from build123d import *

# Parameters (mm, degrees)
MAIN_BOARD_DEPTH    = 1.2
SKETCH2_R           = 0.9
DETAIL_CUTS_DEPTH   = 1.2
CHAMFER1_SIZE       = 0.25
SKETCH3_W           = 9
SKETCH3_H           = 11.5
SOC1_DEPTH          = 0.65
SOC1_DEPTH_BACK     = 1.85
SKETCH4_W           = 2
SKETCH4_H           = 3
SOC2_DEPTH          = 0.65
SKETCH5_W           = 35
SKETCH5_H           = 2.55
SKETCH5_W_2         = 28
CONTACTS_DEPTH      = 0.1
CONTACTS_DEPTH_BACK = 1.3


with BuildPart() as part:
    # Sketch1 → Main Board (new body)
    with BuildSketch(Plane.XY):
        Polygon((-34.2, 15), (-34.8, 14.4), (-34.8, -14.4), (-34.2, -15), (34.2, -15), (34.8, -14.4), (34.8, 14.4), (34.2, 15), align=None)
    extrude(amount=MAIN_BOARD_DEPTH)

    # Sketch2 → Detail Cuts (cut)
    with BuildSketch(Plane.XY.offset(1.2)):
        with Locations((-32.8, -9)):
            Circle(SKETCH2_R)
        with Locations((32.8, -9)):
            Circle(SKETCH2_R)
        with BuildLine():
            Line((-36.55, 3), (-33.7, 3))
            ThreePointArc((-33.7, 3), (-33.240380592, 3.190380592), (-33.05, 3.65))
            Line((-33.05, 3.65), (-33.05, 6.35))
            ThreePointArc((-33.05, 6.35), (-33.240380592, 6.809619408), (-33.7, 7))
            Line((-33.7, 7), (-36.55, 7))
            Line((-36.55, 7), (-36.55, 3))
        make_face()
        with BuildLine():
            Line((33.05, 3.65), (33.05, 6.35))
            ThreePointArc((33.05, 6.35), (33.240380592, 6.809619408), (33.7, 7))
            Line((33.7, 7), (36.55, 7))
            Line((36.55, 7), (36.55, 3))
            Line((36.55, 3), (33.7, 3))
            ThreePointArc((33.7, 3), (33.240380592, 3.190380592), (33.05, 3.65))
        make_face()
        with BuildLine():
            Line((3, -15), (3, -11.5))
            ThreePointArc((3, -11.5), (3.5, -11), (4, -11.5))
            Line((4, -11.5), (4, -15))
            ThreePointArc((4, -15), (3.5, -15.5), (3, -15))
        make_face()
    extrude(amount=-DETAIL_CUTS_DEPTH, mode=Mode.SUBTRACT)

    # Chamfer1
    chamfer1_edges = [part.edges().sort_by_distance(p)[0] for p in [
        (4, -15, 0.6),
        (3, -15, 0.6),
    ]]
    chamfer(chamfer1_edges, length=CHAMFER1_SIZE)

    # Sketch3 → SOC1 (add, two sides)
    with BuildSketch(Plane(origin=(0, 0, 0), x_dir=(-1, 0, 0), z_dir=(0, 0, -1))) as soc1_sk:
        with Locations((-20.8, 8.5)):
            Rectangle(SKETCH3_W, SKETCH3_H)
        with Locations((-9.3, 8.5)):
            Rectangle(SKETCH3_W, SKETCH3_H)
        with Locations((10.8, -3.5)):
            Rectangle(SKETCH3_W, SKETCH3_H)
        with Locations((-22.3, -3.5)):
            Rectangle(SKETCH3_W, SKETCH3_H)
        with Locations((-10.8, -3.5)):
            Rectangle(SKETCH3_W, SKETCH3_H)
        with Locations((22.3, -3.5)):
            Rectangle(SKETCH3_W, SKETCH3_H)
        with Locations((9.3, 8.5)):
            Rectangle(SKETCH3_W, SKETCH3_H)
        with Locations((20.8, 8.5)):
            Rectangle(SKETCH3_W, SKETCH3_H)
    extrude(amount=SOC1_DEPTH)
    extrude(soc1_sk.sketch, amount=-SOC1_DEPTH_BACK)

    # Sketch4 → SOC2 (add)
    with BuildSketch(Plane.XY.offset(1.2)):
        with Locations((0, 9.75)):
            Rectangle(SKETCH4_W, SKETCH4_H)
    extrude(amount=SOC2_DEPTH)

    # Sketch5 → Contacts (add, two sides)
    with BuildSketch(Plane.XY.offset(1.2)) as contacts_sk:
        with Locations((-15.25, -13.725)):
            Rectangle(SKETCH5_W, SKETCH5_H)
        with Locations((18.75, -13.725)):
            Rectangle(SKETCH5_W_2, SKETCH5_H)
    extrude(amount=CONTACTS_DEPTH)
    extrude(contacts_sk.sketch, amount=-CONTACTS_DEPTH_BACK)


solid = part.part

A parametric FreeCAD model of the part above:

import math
import FreeCAD as App
import Part
import Sketcher

V = App.Vector


def edges_at(feature, points):
    """Names of the edges that pass closest to the given points."""
    edges = feature.Shape.Edges
    near = lambda p: min(range(len(edges)), key=lambda i: edges[i].distToShape(Part.Vertex(*p))[0])
    return sorted({f"Edge{near(p) + 1}" for p in points})


def add_polygon(sketch, points):
    """Adds a closed chain of lines whose ends are joined by coincident constraints."""
    first, n = sketch.GeometryCount, len(points)
    for a, b in zip(points, points[1:] + points[:1]):
        sketch.addGeometry(Part.LineSegment(App.Vector(*a, 0), App.Vector(*b, 0)), False)
    for i in range(n):
        sketch.addConstraint(Sketcher.Constraint("Coincident", first + i, 2, first + (i + 1) % n, 1))

doc = App.newDocument("Part")
body = doc.addObject("PartDesign::Body", "Body")

# Sketch on XY plane
sketch1 = body.newObject("Sketcher::SketchObject", "Sketch")
sketch1.AttachmentSupport = (doc.getObject("XY_Plane"), [""])
sketch1.MapMode = "FlatFace"
add_polygon(sketch1, [(-34.2, 15), (-34.8, 14.4), (-34.8, -14.4), (-34.2, -15), (34.2, -15), (34.8, -14.4), (34.8, 14.4), (34.2, 15)])  # lines 0-7
sketch1.addConstraint(Sketcher.Constraint("Vertical", 1))
sketch1.addConstraint(Sketcher.Constraint("Horizontal", 3))
sketch1.addConstraint(Sketcher.Constraint("Vertical", 5))
sketch1.addConstraint(Sketcher.Constraint("Horizontal", 7))
sketch1.addConstraint(Sketcher.Constraint("Symmetric", 0, 2, 4, 2, -1, 1))
sketch1.addConstraint(Sketcher.Constraint("Symmetric", 2, 2, 6, 2, -1, 1))
sketch1.addConstraint(Sketcher.Constraint("Perpendicular", 0, 2))
sketch1.addConstraint(Sketcher.Constraint("Perpendicular", 2, 4))
sketch1.addConstraint(Sketcher.Constraint("Perpendicular", 4, 6))
sketch1.addConstraint(Sketcher.Constraint("Horizontal", 1, 2, 4, 2))
sketch1.addConstraint(Sketcher.Constraint("Vertical", 3, 2, 6, 2))
sketch1.addConstraint(Sketcher.Constraint("DistanceX", 3, 1, 3, 2, 68.4))
sketch1.addConstraint(Sketcher.Constraint("DistanceY", 1, 2, 1, 1, 28.8))
sketch1.addConstraint(Sketcher.Constraint("DistanceY", 2, 2, -1, 1, 15.0))
pad1 = body.newObject("PartDesign::Pad", "Pad")
pad1.Profile = sketch1
pad1.Length = 1.2

# Sketch on XY plane
sketch2 = body.newObject("Sketcher::SketchObject", "Sketch001")
sketch2.AttachmentSupport = (doc.getObject("XY_Plane"), [""])
sketch2.MapMode = "FlatFace"
sketch2.AttachmentOffset = App.Placement(V(0, 0, 1.2), App.Rotation())
sketch2.addGeometry(Part.Circle(V(-32.8, -9, 0), V(0, 0, 1), 0.9), False)
sketch2.addGeometry(Part.Circle(V(32.8, -9, 0), V(0, 0, 1), 0.9), False)
sketch2.addGeometry(Part.LineSegment(V(-36.5, 3, 0), V(-33.7, 3, 0)), False)
sketch2.addGeometry(Part.ArcOfCircle(Part.Circle(V(-33.7, 3.6, 0), V(0, 0, 1), 0.6), math.radians(-90), math.radians(0)), False)
sketch2.addGeometry(Part.LineSegment(V(-33, 3.6, 0), V(-33, 6.3, 0)), False)
sketch2.addGeometry(Part.ArcOfCircle(Part.Circle(V(-33.7, 6.4, 0), V(0, 0, 1), 0.6), math.radians(0), math.radians(90)), False)
sketch2.addGeometry(Part.LineSegment(V(-33.7, 7, 0), V(-36.5, 7, 0)), False)
sketch2.addGeometry(Part.LineSegment(V(-36.5, 7, 0), V(-36.5, 3, 0)), False)
sketch2.addGeometry(Part.LineSegment(V(33, 6.3, 0), V(33, 3.6, 0)), False)
sketch2.addGeometry(Part.ArcOfCircle(Part.Circle(V(33.7, 3.6, 0), V(0, 0, 1), 0.6), math.radians(180), math.radians(270)), False)
sketch2.addGeometry(Part.LineSegment(V(33.7, 3, 0), V(36.5, 3, 0)), False)
sketch2.addGeometry(Part.LineSegment(V(36.5, 3, 0), V(36.5, 7, 0)), False)
sketch2.addGeometry(Part.LineSegment(V(36.5, 7, 0), V(33.7, 7, 0)), False)
sketch2.addGeometry(Part.ArcOfCircle(Part.Circle(V(33.7, 6.4, 0), V(0, 0, 1), 0.6), math.radians(90), math.radians(180)), False)
sketch2.addGeometry(Part.LineSegment(V(3, -11.5, 0), V(3, -15, 0)), False)
sketch2.addGeometry(Part.ArcOfCircle(Part.Circle(V(3.5, -15, 0), V(0, 0, 1), 0.5), math.radians(180), math.radians(360)), False)
sketch2.addGeometry(Part.LineSegment(V(4, -15, 0), V(4, -11.5, 0)), False)
sketch2.addGeometry(Part.ArcOfCircle(Part.Circle(V(3.5, -11.5, 0), V(0, 0, 1), 0.5), math.radians(0), math.radians(180)), False)
sketch2.addConstraint(Sketcher.Constraint("Tangent", 2, 2, 3, 1))
sketch2.addConstraint(Sketcher.Constraint("Tangent", 3, 2, 4, 1))
sketch2.addConstraint(Sketcher.Constraint("Tangent", 4, 2, 5, 1))
sketch2.addConstraint(Sketcher.Constraint("Tangent", 5, 2, 6, 1))
sketch2.addConstraint(Sketcher.Constraint("Coincident", 6, 2, 7, 1))
sketch2.addConstraint(Sketcher.Constraint("Coincident", 7, 2, 2, 1))
sketch2.addConstraint(Sketcher.Constraint("Tangent", 8, 2, 9, 1))
sketch2.addConstraint(Sketcher.Constraint("Tangent", 9, 2, 10, 1))
sketch2.addConstraint(Sketcher.Constraint("Coincident", 10, 2, 11, 1))
sketch2.addConstraint(Sketcher.Constraint("Coincident", 11, 2, 12, 1))
sketch2.addConstraint(Sketcher.Constraint("Tangent", 12, 2, 13, 1))
sketch2.addConstraint(Sketcher.Constraint("Tangent", 13, 2, 8, 1))
sketch2.addConstraint(Sketcher.Constraint("Tangent", 14, 2, 15, 1))
sketch2.addConstraint(Sketcher.Constraint("Tangent", 15, 2, 16, 1))
sketch2.addConstraint(Sketcher.Constraint("Tangent", 16, 2, 17, 1))
sketch2.addConstraint(Sketcher.Constraint("Tangent", 17, 2, 14, 1))
sketch2.addConstraint(Sketcher.Constraint("Horizontal", 2))
sketch2.addConstraint(Sketcher.Constraint("Vertical", 4))
sketch2.addConstraint(Sketcher.Constraint("Horizontal", 6))
sketch2.addConstraint(Sketcher.Constraint("Vertical", 7))
sketch2.addConstraint(Sketcher.Constraint("Vertical", 8))
sketch2.addConstraint(Sketcher.Constraint("Horizontal", 10))
sketch2.addConstraint(Sketcher.Constraint("Vertical", 11))
sketch2.addConstraint(Sketcher.Constraint("Horizontal", 12))
sketch2.addConstraint(Sketcher.Constraint("Vertical", 14))
sketch2.addConstraint(Sketcher.Constraint("Vertical", 16))
sketch2.addConstraint(Sketcher.Constraint("Equal", 0, 1))
sketch2.addConstraint(Sketcher.Constraint("Equal", 3, 5))
sketch2.addConstraint(Sketcher.Constraint("Equal", 5, 9))
sketch2.addConstraint(Sketcher.Constraint("Equal", 9, 13))
sketch2.addConstraint(Sketcher.Constraint("Symmetric", 0, 3, 1, 3, -2))
sketch2.addConstraint(Sketcher.Constraint("Symmetric", 3, 3, 9, 3, -2))
sketch2.addConstraint(Sketcher.Constraint("Symmetric", 6, 2, 11, 2, -2))
sketch2.addConstraint(Sketcher.Constraint("Diameter", 0, 1.8))
sketch2.addConstraint(Sketcher.Constraint("Radius", 15, 0.5))
sketch2.addConstraint(Sketcher.Constraint("DistanceY", 7, 2, 7, 1, 4.0))
sketch2.addConstraint(Sketcher.Constraint("Radius", 3, 0.65))
sketch2.addConstraint(Sketcher.Constraint("DistanceY", 14, 2, 14, 1, 3.5))
sketch2.addConstraint(Sketcher.Constraint("DistanceY", 0, 3, -1, 1, 9.0))
sketch2.addConstraint(Sketcher.Constraint("DistanceY", 15, 3, -1, 1, 15.0))
sketch2.addConstraint(Sketcher.Constraint("DistanceY", -1, 1, 2, 2, 3.0))
sketch2.addConstraint(Sketcher.Constraint("DistanceX", -1, 1, 14, 2, 3.0))
sketch2.addConstraint(Sketcher.Constraint("DistanceX", 2, 1, 2, 2, 2.85))
sketch2.addConstraint(Sketcher.Constraint("DistanceX", 0, 3, -1, 1, 32.8))
sketch2.addConstraint(Sketcher.Constraint("DistanceX", 3, 3, -1, 1, 33.7))
pocket1 = body.newObject("PartDesign::Pocket", "Pocket")
pocket1.Profile = sketch2
pocket1.Length = 1.2
doc.recompute()

chamfer = body.newObject("PartDesign::Chamfer", "Chamfer")
chamfer.Base = (pocket1, edges_at(pocket1, [(4, -15, 0.6), (3, -15, 0.6)]))
chamfer.Size = 0.25

# Sketch on XY plane
sketch3 = body.newObject("Sketcher::SketchObject", "Sketch002")
sketch3.AttachmentSupport = (doc.getObject("XY_Plane"), [""])
sketch3.MapMode = "FlatFace"
add_polygon(sketch3, [(25, 14), (25, 3), (16, 3), (16, 14)])  # lines 0-3
add_polygon(sketch3, [(14, 14), (14, 3), (5, 3), (5, 14)])  # lines 4-7
add_polygon(sketch3, [(-6, 2), (-6, -9), (-15, -9), (-15, 2)])  # lines 8-11
add_polygon(sketch3, [(27, 2), (27, -9), (18, -9), (18, 2)])  # lines 12-15
add_polygon(sketch3, [(15, 2), (15, -9), (6, -9), (6, 2)])  # lines 16-19
add_polygon(sketch3, [(-18, 2), (-18, -9), (-27, -9), (-27, 2)])  # lines 20-23
add_polygon(sketch3, [(-5, 14), (-5, 3), (-14, 3), (-14, 14)])  # lines 24-27
add_polygon(sketch3, [(-16, 14), (-16, 3), (-25, 3), (-25, 14)])  # lines 28-31
sketch3.addConstraint(Sketcher.Constraint("Vertical", 0))
sketch3.addConstraint(Sketcher.Constraint("Horizontal", 1))
sketch3.addConstraint(Sketcher.Constraint("Vertical", 2))
sketch3.addConstraint(Sketcher.Constraint("Horizontal", 3))
sketch3.addConstraint(Sketcher.Constraint("Vertical", 4))
sketch3.addConstraint(Sketcher.Constraint("Horizontal", 5))
sketch3.addConstraint(Sketcher.Constraint("Vertical", 6))
sketch3.addConstraint(Sketcher.Constraint("Horizontal", 7))
sketch3.addConstraint(Sketcher.Constraint("Vertical", 8))
sketch3.addConstraint(Sketcher.Constraint("Horizontal", 9))
sketch3.addConstraint(Sketcher.Constraint("Vertical", 10))
sketch3.addConstraint(Sketcher.Constraint("Horizontal", 11))
sketch3.addConstraint(Sketcher.Constraint("Vertical", 12))
sketch3.addConstraint(Sketcher.Constraint("Horizontal", 13))
sketch3.addConstraint(Sketcher.Constraint("Vertical", 14))
sketch3.addConstraint(Sketcher.Constraint("Horizontal", 15))
sketch3.addConstraint(Sketcher.Constraint("Vertical", 16))
sketch3.addConstraint(Sketcher.Constraint("Horizontal", 17))
sketch3.addConstraint(Sketcher.Constraint("Vertical", 18))
sketch3.addConstraint(Sketcher.Constraint("Horizontal", 19))
sketch3.addConstraint(Sketcher.Constraint("Vertical", 20))
sketch3.addConstraint(Sketcher.Constraint("Horizontal", 21))
sketch3.addConstraint(Sketcher.Constraint("Vertical", 22))
sketch3.addConstraint(Sketcher.Constraint("Horizontal", 23))
sketch3.addConstraint(Sketcher.Constraint("Vertical", 24))
sketch3.addConstraint(Sketcher.Constraint("Horizontal", 25))
sketch3.addConstraint(Sketcher.Constraint("Vertical", 26))
sketch3.addConstraint(Sketcher.Constraint("Horizontal", 27))
sketch3.addConstraint(Sketcher.Constraint("Vertical", 28))
sketch3.addConstraint(Sketcher.Constraint("Horizontal", 29))
sketch3.addConstraint(Sketcher.Constraint("Vertical", 30))
sketch3.addConstraint(Sketcher.Constraint("Horizontal", 31))
sketch3.addConstraint(Sketcher.Constraint("Symmetric", 9, 2, 16, 2, -2))
sketch3.addConstraint(Sketcher.Constraint("Symmetric", 11, 2, 18, 2, -2))
sketch3.addConstraint(Sketcher.Constraint("Symmetric", 13, 2, 20, 2, -2))
sketch3.addConstraint(Sketcher.Constraint("Symmetric", 15, 2, 22, 2, -2))
sketch3.addConstraint(Sketcher.Constraint("Symmetric", 5, 2, 24, 2, -2))
sketch3.addConstraint(Sketcher.Constraint("Symmetric", 7, 2, 26, 2, -2))
sketch3.addConstraint(Sketcher.Constraint("Symmetric", 1, 2, 28, 2, -2))
sketch3.addConstraint(Sketcher.Constraint("Symmetric", 3, 2, 30, 2, -2))
sketch3.addConstraint(Sketcher.Constraint("Horizontal", 1, 2, 4, 2))
sketch3.addConstraint(Sketcher.Constraint("Horizontal", 3, 2, 6, 2))
sketch3.addConstraint(Sketcher.Constraint("Horizontal", 9, 2, 12, 2))
sketch3.addConstraint(Sketcher.Constraint("Horizontal", 11, 2, 14, 2))
sketch3.addConstraint(Sketcher.Constraint("Equal", 3, 5))
sketch3.addConstraint(Sketcher.Constraint("Equal", 7, 9))
sketch3.addConstraint(Sketcher.Constraint("Equal", 11, 13))
sketch3.addConstraint(Sketcher.Constraint("Equal", 6, 8))
sketch3.addConstraint(Sketcher.Constraint("DistanceX", 1, 2, 1, 1, 9.0))
sketch3.addConstraint(Sketcher.Constraint("DistanceY", 0, 2, 0, 1, 11.5))
sketch3.addConstraint(Sketcher.Constraint("DistanceY", 8, 2, 5, 2, 12.0))
sketch3.addConstraint(Sketcher.Constraint("DistanceX", 4, 2, 12, 2, 13.0))
sketch3.addConstraint(Sketcher.Constraint("DistanceX", 16, 2, 1, 2, 1.0))
sketch3.addConstraint(Sketcher.Constraint("DistanceX", -1, 1, 0, 2, 25.3))
sketch3.addConstraint(Sketcher.Constraint("DistanceX", -1, 1, 4, 2, 13.8))
sketch3.addConstraint(Sketcher.Constraint("DistanceY", -1, 1, 0, 2, 2.75))
pad2 = body.newObject("PartDesign::Pad", "Pad001")
pad2.Profile = sketch3
pad2.Type = "TwoLengths"
pad2.Length = 0.65
pad2.Length2 = 1.85
pad2.Reversed = True

# Sketch on XY plane
sketch4 = body.newObject("Sketcher::SketchObject", "Sketch003")
sketch4.AttachmentSupport = (doc.getObject("XY_Plane"), [""])
sketch4.MapMode = "FlatFace"
sketch4.AttachmentOffset = App.Placement(V(0, 0, 1.2), App.Rotation())
add_polygon(sketch4, [(-1, 11.2), (-1, 8.2), (1, 8.2), (1, 11.2)])  # lines 0-3
sketch4.addConstraint(Sketcher.Constraint("Vertical", 0))
sketch4.addConstraint(Sketcher.Constraint("Horizontal", 1))
sketch4.addConstraint(Sketcher.Constraint("Vertical", 2))
sketch4.addConstraint(Sketcher.Constraint("Horizontal", 3))
sketch4.addConstraint(Sketcher.Constraint("DistanceX", 1, 1, 1, 2, 2.0))
sketch4.addConstraint(Sketcher.Constraint("DistanceY", 0, 2, 0, 1, 3.0))
sketch4.addConstraint(Sketcher.Constraint("DistanceX", 0, 2, -1, 1, 1.0))
sketch4.addConstraint(Sketcher.Constraint("DistanceY", -1, 1, 0, 2, 8.25))
pad3 = body.newObject("PartDesign::Pad", "Pad002")
pad3.Profile = sketch4
pad3.Length = 0.65

# Sketch on XY plane
sketch5 = body.newObject("Sketcher::SketchObject", "Sketch004")
sketch5.AttachmentSupport = (doc.getObject("XY_Plane"), [""])
sketch5.MapMode = "FlatFace"
sketch5.AttachmentOffset = App.Placement(V(0, 0, 1.2), App.Rotation())
add_polygon(sketch5, [(-32.8, -12.4), (-32.8, -15), (2.2, -15), (2.2, -12.4)])  # lines 0-3
add_polygon(sketch5, [(4.8, -12.4), (4.8, -15), (32.8, -15), (32.8, -12.4)])  # lines 4-7
sketch5.addConstraint(Sketcher.Constraint("Vertical", 0))
sketch5.addConstraint(Sketcher.Constraint("Horizontal", 1))
sketch5.addConstraint(Sketcher.Constraint("Vertical", 2))
sketch5.addConstraint(Sketcher.Constraint("Horizontal", 3))
sketch5.addConstraint(Sketcher.Constraint("Vertical", 4))
sketch5.addConstraint(Sketcher.Constraint("Horizontal", 5))
sketch5.addConstraint(Sketcher.Constraint("Vertical", 6))
sketch5.addConstraint(Sketcher.Constraint("Horizontal", 7))
sketch5.addConstraint(Sketcher.Constraint("Symmetric", 0, 2, 5, 2, -2))
sketch5.addConstraint(Sketcher.Constraint("Horizontal", 3, 2, 6, 2))
sketch5.addConstraint(Sketcher.Constraint("DistanceX", 1, 1, 1, 2, 35.0))
sketch5.addConstraint(Sketcher.Constraint("DistanceX", 5, 1, 5, 2, 28.0))
sketch5.addConstraint(Sketcher.Constraint("DistanceY", 0, 2, -1, 1, 15.0))
sketch5.addConstraint(Sketcher.Constraint("DistanceY", 0, 2, 0, 1, 2.55))
sketch5.addConstraint(Sketcher.Constraint("DistanceX", 1, 2, 4, 2, 2.5))
pad4 = body.newObject("PartDesign::Pad", "Pad003")
pad4.Profile = sketch5
pad4.Type = "TwoLengths"
pad4.Length = 0.1
pad4.Length2 = 1.3

doc.recompute()
